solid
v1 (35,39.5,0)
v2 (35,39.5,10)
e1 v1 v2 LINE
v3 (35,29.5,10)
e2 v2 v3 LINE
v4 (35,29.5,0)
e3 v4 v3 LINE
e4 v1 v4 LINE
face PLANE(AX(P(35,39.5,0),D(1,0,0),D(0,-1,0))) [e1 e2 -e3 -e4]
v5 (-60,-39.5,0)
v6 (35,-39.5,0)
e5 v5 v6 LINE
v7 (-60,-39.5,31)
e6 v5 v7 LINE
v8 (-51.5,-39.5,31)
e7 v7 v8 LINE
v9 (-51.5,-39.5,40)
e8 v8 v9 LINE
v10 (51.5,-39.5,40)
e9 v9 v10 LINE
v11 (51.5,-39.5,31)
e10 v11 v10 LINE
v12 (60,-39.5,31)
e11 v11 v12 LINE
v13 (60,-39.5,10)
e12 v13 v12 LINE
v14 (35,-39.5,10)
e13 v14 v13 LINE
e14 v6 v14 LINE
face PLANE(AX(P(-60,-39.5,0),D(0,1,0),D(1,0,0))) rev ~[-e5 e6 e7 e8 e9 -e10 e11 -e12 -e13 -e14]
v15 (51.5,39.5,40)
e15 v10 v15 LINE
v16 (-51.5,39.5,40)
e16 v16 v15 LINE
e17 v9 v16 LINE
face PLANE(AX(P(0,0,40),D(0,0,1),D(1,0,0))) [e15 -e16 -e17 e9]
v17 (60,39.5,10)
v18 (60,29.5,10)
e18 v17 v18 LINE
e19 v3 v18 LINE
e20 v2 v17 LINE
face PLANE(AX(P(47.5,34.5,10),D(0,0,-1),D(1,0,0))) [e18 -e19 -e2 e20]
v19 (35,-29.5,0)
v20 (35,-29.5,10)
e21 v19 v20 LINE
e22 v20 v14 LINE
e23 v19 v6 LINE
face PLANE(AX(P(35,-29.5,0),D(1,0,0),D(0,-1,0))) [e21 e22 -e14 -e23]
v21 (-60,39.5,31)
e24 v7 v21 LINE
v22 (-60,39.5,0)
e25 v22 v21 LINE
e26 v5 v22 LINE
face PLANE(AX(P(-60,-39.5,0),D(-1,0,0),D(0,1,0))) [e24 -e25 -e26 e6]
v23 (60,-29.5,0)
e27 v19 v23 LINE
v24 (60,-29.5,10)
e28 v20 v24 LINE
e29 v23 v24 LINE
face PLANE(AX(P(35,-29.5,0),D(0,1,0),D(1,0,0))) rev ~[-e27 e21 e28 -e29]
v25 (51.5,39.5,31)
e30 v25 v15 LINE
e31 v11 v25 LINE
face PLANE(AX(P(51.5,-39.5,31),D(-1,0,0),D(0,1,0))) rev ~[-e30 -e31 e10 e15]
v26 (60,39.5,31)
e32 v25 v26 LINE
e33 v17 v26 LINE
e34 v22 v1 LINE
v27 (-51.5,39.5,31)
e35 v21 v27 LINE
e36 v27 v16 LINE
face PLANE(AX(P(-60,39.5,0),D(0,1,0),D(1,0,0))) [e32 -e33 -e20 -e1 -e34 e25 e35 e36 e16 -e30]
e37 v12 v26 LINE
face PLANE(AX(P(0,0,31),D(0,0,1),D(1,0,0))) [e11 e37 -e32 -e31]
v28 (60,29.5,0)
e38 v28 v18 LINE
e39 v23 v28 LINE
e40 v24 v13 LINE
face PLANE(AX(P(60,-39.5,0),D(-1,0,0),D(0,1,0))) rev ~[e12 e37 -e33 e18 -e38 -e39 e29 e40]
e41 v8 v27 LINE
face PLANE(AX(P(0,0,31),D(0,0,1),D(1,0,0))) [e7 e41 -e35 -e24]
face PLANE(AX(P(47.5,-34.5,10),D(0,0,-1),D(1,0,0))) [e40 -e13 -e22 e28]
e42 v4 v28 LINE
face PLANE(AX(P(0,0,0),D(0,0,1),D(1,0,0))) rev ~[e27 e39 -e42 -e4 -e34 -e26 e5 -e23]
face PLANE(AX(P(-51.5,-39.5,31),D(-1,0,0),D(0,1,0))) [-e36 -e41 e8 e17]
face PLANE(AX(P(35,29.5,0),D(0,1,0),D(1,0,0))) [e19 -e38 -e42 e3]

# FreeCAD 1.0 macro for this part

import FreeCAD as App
import Part
import Sketcher
Q = App.Units.Quantity


def add_polygon(sketch, points):
    """Adds a closed chain of lines whose ends are joined by coincident constraints."""
    first, n = sketch.GeometryCount, len(points)
    for a, b in zip(points, points[1:] + points[:1]):
        sketch.addGeometry(Part.LineSegment(App.Vector(*a, 0), App.Vector(*b, 0)), False)
    for i in range(n):
        sketch.addConstraint(Sketcher.Constraint("Coincident", first + i, 2, first + (i + 1) % n, 1))

doc = App.newDocument("Part")
params = doc.addObject("Spreadsheet::Sheet", "Params")
for row, (alias, value) in enumerate([
    ("sketch1_width", "120 mm"),
    ("sketch1_height", "79 mm"),
    ("pad1_length", "31 mm"),
    ("sketch2_width", "103 mm"),
    ("sketch2_height", "79 mm"),
    ("pad2_length", "9 mm"),
    ("sketch3_width", "25 mm"),
    ("sketch3_height", "10 mm"),
    ("pocket1_length", "10 mm"),
    ("sketch4_width", "25 mm"),
    ("sketch4_height", "10 mm"),
    ("pocket2_length", "10 mm"),
], start=1):
    params.set(f"A{row}", alias)
    params.set(f"B{row}", "=" + value)
    params.setAlias(f"B{row}", alias)

body = doc.addObject("PartDesign::Body", "Body")

sketch1 = body.newObject("Sketcher::SketchObject", "Sketch")
sketch1.AttachmentSupport = (doc.getObject("XY_Plane"), [""])
sketch1.MapMode = "FlatFace"
add_polygon(sketch1, [(-60, 40), (-60, -40), (60, -40), (60, 40)])
sketch1.addConstraint([
    Sketcher.Constraint("Vertical", 0),
    Sketcher.Constraint("Horizontal", 1),
    Sketcher.Constraint("Vertical", 2),
    Sketcher.Constraint("Horizontal", 3),
    Sketcher.Constraint("Symmetric", 0, 2, 2, 2, -1, 1),
    Sketcher.Constraint("DistanceX", 1, 1, 1, 2, Q("120 mm")),
    Sketcher.Constraint("DistanceY", 0, 2, 0, 1, Q("79 mm")),
])
sketch1.setExpression("Constraints[9]", "Params.sketch1_width")
sketch1.setExpression("Constraints[10]", "Params.sketch1_height")
pad1 = body.newObject("PartDesign::Pad", "Pad")
pad1.Profile = sketch1
pad1.setExpression("Length", "Params.pad1_length")

sketch2 = body.newObject("Sketcher::SketchObject", "Sketch001")
sketch2.AttachmentSupport = (doc.getObject("XY_Plane"), [""])
sketch2.MapMode = "FlatFace"
sketch2.AttachmentOffset = App.Placement(App.Vector(0, 0, 31), App.Rotation())
add_polygon(sketch2, [(-52, 40), (-52, -40), (52, -40), (52, 40)])
sketch2.addConstraint([
    Sketcher.Constraint("Vertical", 0),
    Sketcher.Constraint("Horizontal", 1),
    Sketcher.Constraint("Vertical", 2),
    Sketcher.Constraint("Horizontal", 3),
    Sketcher.Constraint("Symmetric", 0, 2, 2, 2, -1, 1),
    Sketcher.Constraint("DistanceX", 1, 1, 1, 2, Q("103 mm")),
    Sketcher.Constraint("DistanceY", 0, 2, 0, 1, Q("79 mm")),
])
sketch2.setExpression("Constraints[9]", "Params.sketch2_width")
sketch2.setExpression("Constraints[10]", "Params.sketch2_height")
pad2 = body.newObject("PartDesign::Pad", "Pad001")
pad2.Profile = sketch2
pad2.setExpression("Length", "Params.pad2_length")

sketch3 = body.newObject("Sketcher::SketchObject", "Sketch002")
sketch3.AttachmentSupport = (doc.getObject("XY_Plane"), [""])
sketch3.MapMode = "FlatFace"
add_polygon(sketch3, [(35, 30), (35, 40), (60, 40), (60, 30)])
sketch3.addConstraint([
    Sketcher.Constraint("Vertical", 0),
    Sketcher.Constraint("Horizontal", 1),
    Sketcher.Constraint("Vertical", 2),
    Sketcher.Constraint("Horizontal", 3),
    Sketcher.Constraint("DistanceX", 1, 1, 1, 2, Q("25 mm")),
    Sketcher.Constraint("DistanceY", 0, 1, 0, 2, Q("10 mm")),
    Sketcher.Constraint("DistanceX", -1, 1, 0, 2, Q("35 mm")),
    Sketcher.Constraint("DistanceY", -1, 1, 0, 2, Q("39.5 mm")),
])
sketch3.setExpression("Constraints[8]", "Params.sketch3_width")
sketch3.setExpression("Constraints[9]", "Params.sketch3_height")
pocket1 = body.newObject("PartDesign::Pocket", "Pocket")
pocket1.Profile = sketch3
pocket1.setExpression("Length", "Params.pocket1_length")
pocket1.Reversed = True

sketch4 = body.newObject("Sketcher::SketchObject", "Sketch003")
sketch4.AttachmentSupport = (doc.getObject("XY_Plane"), [""])
sketch4.MapMode = "FlatFace"
add_polygon(sketch4, [(35, -40), (35, -30), (60, -30), (60, -40)])
sketch4.addConstraint([
    Sketcher.Constraint("Vertical", 0),
    Sketcher.Constraint("Horizontal", 1),
    Sketcher.Constraint("Vertical", 2),
    Sketcher.Constraint("Horizontal", 3),
    Sketcher.Constraint("DistanceX", 1, 1, 1, 2, Q("25 mm")),
    Sketcher.Constraint("DistanceY", 0, 1, 0, 2, Q("10 mm")),
    Sketcher.Constraint("DistanceX", -1, 1, 0, 2, Q("35 mm")),
    Sketcher.Constraint("DistanceY", 0, 2, -1, 1, Q("29.5 mm")),
])
sketch4.setExpression("Constraints[8]", "Params.sketch4_width")
sketch4.setExpression("Constraints[9]", "Params.sketch4_height")
pocket2 = body.newObject("PartDesign::Pocket", "Pocket001")
pocket2.Profile = sketch4
pocket2.setExpression("Length", "Params.pocket2_length")
pocket2.Reversed = True

doc.recompute()
